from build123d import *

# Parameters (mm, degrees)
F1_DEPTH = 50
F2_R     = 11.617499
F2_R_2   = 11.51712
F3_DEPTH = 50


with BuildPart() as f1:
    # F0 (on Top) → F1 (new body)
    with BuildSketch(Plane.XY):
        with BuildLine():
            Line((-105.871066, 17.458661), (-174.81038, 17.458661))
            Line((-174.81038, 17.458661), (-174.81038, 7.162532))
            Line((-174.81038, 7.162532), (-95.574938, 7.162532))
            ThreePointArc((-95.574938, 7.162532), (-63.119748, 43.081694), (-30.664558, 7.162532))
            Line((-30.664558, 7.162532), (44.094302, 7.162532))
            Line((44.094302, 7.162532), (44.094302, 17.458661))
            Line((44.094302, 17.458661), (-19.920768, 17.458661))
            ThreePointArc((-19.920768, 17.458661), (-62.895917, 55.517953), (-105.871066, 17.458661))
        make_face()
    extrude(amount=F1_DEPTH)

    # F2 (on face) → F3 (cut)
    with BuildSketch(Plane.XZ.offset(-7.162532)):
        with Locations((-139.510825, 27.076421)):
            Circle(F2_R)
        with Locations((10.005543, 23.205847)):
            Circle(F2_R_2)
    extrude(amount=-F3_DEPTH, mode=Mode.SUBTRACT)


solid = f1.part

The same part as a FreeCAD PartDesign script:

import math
import FreeCAD as App
import Part
import Sketcher

doc = App.newDocument("Part")
body = doc.addObject("PartDesign::Body", "Body")

sketch1 = body.newObject("Sketcher::SketchObject", "Sketch")
sketch1.AttachmentSupport = (doc.getObject("XY_Plane"), [""])
sketch1.MapMode = "FlatFace"
sketch1.addGeometry(Part.LineSegment(App.Vector(-106, 17, 0), App.Vector(-175, 17, 0)), False)
sketch1.addGeometry(Part.LineSegment(App.Vector(-175, 17, 0), App.Vector(-175, 7, 0)), False)
sketch1.addGeometry(Part.LineSegment(App.Vector(-175, 7, 0), App.Vector(-96, 7, 0)), False)
sketch1.addGeometry(Part.ArcOfCircle(Part.Circle(App.Vector(-63, 10, 0), App.Vector(0, 0, 1), 33), math.radians(-6), math.radians(186)), False)
sketch1.addGeometry(Part.LineSegment(App.Vector(-31, 7, 0), App.Vector(44, 7, 0)), False)
sketch1.addGeometry(Part.LineSegment(App.Vector(44, 7, 0), App.Vector(44, 17, 0)), False)
sketch1.addGeometry(Part.LineSegment(App.Vector(44, 17, 0), App.Vector(-20, 17, 0)), False)
sketch1.addGeometry(Part.ArcOfCircle(Part.Circle(App.Vector(-63, 12, 0), App.Vector(0, 0, 1), 43), math.radians(7), math.radians(173)), False)
sketch1.addConstraint(Sketcher.Constraint("Coincident", 0, 2, 1, 1))
sketch1.addConstraint(Sketcher.Constraint("Coincident", 1, 2, 2, 1))
sketch1.addConstraint(Sketcher.Constraint("Coincident", 2, 2, 3, 2))
sketch1.addConstraint(Sketcher.Constraint("Coincident", 3, 1, 4, 1))
sketch1.addConstraint(Sketcher.Constraint("Coincident", 4, 2, 5, 1))
sketch1.addConstraint(Sketcher.Constraint("Coincident", 5, 2, 6, 1))
sketch1.addConstraint(Sketcher.Constraint("Coincident", 6, 2, 7, 1))
sketch1.addConstraint(Sketcher.Constraint("Coincident", 7, 2, 0, 1))
sketch1.addConstraint(Sketcher.Constraint("Horizontal", 0))
sketch1.addConstraint(Sketcher.Constraint("Vertical", 1))
sketch1.addConstraint(Sketcher.Constraint("Horizontal", 2))
sketch1.addConstraint(Sketcher.Constraint("Horizontal", 4))
sketch1.addConstraint(Sketcher.Constraint("Vertical", 5))
sketch1.addConstraint(Sketcher.Constraint("Horizontal", 6))
sketch1.addConstraint(Sketcher.Constraint("Horizontal", 2, 2, 3, 1))
sketch1.addConstraint(Sketcher.Constraint("Horizontal", 0, 2, 5, 2))
sketch1.addConstraint(Sketcher.Constraint("Radius", 3, 32.622219))
sketch1.addConstraint(Sketcher.Constraint("Radius", 7, 43.292623))
sketch1.addConstraint(Sketcher.Constraint("DistanceX", 4, 1, 4, 2, 74.75886))
sketch1.addConstraint(Sketcher.Constraint("DistanceX", 6, 2, 6, 1, 64.01507))
sketch1.addConstraint(Sketcher.Constraint("DistanceY", 1, 2, 1, 1, 10.296129))
sketch1.addConstraint(Sketcher.Constraint("DistanceY", 1, 2, 7, 3, 5.062798))
sketch1.addConstraint(Sketcher.Constraint("DistanceX", 0, 2, 0, 1, 68.939314))
sketch1.addConstraint(Sketcher.Constraint("DistanceX", 2, 1, 2, 2, 79.235442))
sketch1.addConstraint(Sketcher.Constraint("DistanceY", -1, 1, 7, 3, 12.22533))
sketch1.addConstraint(Sketcher.Constraint("DistanceX", 0, 2, -1, 1, 174.81038))
pad1 = body.newObject("PartDesign::Pad", "Pad")
pad1.Profile = sketch1
pad1.Length = 50

sketch2 = body.newObject("Sketcher::SketchObject", "Sketch001")
sketch2.AttachmentSupport = (doc.getObject("XZ_Plane"), [""])
sketch2.MapMode = "FlatFace"
sketch2.AttachmentOffset = App.Placement(App.Vector(0, 0, -7.162532), App.Rotation())
sketch2.addGeometry(Part.Circle(App.Vector(-140, 27, 0), App.Vector(0, 0, 1), 12), False)
sketch2.addGeometry(Part.Circle(App.Vector(10, 23, 0), App.Vector(0, 0, 1), 12), False)
sketch2.addConstraint(Sketcher.Constraint("Diameter", 0, 23.234998))
sketch2.addConstraint(Sketcher.Constraint("Diameter", 1, 23.03424))
sketch2.addConstraint(Sketcher.Constraint("DistanceY", -1, 1, 0, 3, 27.076421))
sketch2.addConstraint(Sketcher.Constraint("DistanceX", 0, 3, 1, 3, 149.516368))
sketch2.addConstraint(Sketcher.Constraint("DistanceX", 0, 3, -1, 1, 139.510825))
sketch2.addConstraint(Sketcher.Constraint("DistanceY", -1, 1, 1, 3, 23.205847))
pocket1 = body.newObject("PartDesign::Pocket", "Pocket")
pocket1.Profile = sketch2
pocket1.Length = 50

doc.recompute()
